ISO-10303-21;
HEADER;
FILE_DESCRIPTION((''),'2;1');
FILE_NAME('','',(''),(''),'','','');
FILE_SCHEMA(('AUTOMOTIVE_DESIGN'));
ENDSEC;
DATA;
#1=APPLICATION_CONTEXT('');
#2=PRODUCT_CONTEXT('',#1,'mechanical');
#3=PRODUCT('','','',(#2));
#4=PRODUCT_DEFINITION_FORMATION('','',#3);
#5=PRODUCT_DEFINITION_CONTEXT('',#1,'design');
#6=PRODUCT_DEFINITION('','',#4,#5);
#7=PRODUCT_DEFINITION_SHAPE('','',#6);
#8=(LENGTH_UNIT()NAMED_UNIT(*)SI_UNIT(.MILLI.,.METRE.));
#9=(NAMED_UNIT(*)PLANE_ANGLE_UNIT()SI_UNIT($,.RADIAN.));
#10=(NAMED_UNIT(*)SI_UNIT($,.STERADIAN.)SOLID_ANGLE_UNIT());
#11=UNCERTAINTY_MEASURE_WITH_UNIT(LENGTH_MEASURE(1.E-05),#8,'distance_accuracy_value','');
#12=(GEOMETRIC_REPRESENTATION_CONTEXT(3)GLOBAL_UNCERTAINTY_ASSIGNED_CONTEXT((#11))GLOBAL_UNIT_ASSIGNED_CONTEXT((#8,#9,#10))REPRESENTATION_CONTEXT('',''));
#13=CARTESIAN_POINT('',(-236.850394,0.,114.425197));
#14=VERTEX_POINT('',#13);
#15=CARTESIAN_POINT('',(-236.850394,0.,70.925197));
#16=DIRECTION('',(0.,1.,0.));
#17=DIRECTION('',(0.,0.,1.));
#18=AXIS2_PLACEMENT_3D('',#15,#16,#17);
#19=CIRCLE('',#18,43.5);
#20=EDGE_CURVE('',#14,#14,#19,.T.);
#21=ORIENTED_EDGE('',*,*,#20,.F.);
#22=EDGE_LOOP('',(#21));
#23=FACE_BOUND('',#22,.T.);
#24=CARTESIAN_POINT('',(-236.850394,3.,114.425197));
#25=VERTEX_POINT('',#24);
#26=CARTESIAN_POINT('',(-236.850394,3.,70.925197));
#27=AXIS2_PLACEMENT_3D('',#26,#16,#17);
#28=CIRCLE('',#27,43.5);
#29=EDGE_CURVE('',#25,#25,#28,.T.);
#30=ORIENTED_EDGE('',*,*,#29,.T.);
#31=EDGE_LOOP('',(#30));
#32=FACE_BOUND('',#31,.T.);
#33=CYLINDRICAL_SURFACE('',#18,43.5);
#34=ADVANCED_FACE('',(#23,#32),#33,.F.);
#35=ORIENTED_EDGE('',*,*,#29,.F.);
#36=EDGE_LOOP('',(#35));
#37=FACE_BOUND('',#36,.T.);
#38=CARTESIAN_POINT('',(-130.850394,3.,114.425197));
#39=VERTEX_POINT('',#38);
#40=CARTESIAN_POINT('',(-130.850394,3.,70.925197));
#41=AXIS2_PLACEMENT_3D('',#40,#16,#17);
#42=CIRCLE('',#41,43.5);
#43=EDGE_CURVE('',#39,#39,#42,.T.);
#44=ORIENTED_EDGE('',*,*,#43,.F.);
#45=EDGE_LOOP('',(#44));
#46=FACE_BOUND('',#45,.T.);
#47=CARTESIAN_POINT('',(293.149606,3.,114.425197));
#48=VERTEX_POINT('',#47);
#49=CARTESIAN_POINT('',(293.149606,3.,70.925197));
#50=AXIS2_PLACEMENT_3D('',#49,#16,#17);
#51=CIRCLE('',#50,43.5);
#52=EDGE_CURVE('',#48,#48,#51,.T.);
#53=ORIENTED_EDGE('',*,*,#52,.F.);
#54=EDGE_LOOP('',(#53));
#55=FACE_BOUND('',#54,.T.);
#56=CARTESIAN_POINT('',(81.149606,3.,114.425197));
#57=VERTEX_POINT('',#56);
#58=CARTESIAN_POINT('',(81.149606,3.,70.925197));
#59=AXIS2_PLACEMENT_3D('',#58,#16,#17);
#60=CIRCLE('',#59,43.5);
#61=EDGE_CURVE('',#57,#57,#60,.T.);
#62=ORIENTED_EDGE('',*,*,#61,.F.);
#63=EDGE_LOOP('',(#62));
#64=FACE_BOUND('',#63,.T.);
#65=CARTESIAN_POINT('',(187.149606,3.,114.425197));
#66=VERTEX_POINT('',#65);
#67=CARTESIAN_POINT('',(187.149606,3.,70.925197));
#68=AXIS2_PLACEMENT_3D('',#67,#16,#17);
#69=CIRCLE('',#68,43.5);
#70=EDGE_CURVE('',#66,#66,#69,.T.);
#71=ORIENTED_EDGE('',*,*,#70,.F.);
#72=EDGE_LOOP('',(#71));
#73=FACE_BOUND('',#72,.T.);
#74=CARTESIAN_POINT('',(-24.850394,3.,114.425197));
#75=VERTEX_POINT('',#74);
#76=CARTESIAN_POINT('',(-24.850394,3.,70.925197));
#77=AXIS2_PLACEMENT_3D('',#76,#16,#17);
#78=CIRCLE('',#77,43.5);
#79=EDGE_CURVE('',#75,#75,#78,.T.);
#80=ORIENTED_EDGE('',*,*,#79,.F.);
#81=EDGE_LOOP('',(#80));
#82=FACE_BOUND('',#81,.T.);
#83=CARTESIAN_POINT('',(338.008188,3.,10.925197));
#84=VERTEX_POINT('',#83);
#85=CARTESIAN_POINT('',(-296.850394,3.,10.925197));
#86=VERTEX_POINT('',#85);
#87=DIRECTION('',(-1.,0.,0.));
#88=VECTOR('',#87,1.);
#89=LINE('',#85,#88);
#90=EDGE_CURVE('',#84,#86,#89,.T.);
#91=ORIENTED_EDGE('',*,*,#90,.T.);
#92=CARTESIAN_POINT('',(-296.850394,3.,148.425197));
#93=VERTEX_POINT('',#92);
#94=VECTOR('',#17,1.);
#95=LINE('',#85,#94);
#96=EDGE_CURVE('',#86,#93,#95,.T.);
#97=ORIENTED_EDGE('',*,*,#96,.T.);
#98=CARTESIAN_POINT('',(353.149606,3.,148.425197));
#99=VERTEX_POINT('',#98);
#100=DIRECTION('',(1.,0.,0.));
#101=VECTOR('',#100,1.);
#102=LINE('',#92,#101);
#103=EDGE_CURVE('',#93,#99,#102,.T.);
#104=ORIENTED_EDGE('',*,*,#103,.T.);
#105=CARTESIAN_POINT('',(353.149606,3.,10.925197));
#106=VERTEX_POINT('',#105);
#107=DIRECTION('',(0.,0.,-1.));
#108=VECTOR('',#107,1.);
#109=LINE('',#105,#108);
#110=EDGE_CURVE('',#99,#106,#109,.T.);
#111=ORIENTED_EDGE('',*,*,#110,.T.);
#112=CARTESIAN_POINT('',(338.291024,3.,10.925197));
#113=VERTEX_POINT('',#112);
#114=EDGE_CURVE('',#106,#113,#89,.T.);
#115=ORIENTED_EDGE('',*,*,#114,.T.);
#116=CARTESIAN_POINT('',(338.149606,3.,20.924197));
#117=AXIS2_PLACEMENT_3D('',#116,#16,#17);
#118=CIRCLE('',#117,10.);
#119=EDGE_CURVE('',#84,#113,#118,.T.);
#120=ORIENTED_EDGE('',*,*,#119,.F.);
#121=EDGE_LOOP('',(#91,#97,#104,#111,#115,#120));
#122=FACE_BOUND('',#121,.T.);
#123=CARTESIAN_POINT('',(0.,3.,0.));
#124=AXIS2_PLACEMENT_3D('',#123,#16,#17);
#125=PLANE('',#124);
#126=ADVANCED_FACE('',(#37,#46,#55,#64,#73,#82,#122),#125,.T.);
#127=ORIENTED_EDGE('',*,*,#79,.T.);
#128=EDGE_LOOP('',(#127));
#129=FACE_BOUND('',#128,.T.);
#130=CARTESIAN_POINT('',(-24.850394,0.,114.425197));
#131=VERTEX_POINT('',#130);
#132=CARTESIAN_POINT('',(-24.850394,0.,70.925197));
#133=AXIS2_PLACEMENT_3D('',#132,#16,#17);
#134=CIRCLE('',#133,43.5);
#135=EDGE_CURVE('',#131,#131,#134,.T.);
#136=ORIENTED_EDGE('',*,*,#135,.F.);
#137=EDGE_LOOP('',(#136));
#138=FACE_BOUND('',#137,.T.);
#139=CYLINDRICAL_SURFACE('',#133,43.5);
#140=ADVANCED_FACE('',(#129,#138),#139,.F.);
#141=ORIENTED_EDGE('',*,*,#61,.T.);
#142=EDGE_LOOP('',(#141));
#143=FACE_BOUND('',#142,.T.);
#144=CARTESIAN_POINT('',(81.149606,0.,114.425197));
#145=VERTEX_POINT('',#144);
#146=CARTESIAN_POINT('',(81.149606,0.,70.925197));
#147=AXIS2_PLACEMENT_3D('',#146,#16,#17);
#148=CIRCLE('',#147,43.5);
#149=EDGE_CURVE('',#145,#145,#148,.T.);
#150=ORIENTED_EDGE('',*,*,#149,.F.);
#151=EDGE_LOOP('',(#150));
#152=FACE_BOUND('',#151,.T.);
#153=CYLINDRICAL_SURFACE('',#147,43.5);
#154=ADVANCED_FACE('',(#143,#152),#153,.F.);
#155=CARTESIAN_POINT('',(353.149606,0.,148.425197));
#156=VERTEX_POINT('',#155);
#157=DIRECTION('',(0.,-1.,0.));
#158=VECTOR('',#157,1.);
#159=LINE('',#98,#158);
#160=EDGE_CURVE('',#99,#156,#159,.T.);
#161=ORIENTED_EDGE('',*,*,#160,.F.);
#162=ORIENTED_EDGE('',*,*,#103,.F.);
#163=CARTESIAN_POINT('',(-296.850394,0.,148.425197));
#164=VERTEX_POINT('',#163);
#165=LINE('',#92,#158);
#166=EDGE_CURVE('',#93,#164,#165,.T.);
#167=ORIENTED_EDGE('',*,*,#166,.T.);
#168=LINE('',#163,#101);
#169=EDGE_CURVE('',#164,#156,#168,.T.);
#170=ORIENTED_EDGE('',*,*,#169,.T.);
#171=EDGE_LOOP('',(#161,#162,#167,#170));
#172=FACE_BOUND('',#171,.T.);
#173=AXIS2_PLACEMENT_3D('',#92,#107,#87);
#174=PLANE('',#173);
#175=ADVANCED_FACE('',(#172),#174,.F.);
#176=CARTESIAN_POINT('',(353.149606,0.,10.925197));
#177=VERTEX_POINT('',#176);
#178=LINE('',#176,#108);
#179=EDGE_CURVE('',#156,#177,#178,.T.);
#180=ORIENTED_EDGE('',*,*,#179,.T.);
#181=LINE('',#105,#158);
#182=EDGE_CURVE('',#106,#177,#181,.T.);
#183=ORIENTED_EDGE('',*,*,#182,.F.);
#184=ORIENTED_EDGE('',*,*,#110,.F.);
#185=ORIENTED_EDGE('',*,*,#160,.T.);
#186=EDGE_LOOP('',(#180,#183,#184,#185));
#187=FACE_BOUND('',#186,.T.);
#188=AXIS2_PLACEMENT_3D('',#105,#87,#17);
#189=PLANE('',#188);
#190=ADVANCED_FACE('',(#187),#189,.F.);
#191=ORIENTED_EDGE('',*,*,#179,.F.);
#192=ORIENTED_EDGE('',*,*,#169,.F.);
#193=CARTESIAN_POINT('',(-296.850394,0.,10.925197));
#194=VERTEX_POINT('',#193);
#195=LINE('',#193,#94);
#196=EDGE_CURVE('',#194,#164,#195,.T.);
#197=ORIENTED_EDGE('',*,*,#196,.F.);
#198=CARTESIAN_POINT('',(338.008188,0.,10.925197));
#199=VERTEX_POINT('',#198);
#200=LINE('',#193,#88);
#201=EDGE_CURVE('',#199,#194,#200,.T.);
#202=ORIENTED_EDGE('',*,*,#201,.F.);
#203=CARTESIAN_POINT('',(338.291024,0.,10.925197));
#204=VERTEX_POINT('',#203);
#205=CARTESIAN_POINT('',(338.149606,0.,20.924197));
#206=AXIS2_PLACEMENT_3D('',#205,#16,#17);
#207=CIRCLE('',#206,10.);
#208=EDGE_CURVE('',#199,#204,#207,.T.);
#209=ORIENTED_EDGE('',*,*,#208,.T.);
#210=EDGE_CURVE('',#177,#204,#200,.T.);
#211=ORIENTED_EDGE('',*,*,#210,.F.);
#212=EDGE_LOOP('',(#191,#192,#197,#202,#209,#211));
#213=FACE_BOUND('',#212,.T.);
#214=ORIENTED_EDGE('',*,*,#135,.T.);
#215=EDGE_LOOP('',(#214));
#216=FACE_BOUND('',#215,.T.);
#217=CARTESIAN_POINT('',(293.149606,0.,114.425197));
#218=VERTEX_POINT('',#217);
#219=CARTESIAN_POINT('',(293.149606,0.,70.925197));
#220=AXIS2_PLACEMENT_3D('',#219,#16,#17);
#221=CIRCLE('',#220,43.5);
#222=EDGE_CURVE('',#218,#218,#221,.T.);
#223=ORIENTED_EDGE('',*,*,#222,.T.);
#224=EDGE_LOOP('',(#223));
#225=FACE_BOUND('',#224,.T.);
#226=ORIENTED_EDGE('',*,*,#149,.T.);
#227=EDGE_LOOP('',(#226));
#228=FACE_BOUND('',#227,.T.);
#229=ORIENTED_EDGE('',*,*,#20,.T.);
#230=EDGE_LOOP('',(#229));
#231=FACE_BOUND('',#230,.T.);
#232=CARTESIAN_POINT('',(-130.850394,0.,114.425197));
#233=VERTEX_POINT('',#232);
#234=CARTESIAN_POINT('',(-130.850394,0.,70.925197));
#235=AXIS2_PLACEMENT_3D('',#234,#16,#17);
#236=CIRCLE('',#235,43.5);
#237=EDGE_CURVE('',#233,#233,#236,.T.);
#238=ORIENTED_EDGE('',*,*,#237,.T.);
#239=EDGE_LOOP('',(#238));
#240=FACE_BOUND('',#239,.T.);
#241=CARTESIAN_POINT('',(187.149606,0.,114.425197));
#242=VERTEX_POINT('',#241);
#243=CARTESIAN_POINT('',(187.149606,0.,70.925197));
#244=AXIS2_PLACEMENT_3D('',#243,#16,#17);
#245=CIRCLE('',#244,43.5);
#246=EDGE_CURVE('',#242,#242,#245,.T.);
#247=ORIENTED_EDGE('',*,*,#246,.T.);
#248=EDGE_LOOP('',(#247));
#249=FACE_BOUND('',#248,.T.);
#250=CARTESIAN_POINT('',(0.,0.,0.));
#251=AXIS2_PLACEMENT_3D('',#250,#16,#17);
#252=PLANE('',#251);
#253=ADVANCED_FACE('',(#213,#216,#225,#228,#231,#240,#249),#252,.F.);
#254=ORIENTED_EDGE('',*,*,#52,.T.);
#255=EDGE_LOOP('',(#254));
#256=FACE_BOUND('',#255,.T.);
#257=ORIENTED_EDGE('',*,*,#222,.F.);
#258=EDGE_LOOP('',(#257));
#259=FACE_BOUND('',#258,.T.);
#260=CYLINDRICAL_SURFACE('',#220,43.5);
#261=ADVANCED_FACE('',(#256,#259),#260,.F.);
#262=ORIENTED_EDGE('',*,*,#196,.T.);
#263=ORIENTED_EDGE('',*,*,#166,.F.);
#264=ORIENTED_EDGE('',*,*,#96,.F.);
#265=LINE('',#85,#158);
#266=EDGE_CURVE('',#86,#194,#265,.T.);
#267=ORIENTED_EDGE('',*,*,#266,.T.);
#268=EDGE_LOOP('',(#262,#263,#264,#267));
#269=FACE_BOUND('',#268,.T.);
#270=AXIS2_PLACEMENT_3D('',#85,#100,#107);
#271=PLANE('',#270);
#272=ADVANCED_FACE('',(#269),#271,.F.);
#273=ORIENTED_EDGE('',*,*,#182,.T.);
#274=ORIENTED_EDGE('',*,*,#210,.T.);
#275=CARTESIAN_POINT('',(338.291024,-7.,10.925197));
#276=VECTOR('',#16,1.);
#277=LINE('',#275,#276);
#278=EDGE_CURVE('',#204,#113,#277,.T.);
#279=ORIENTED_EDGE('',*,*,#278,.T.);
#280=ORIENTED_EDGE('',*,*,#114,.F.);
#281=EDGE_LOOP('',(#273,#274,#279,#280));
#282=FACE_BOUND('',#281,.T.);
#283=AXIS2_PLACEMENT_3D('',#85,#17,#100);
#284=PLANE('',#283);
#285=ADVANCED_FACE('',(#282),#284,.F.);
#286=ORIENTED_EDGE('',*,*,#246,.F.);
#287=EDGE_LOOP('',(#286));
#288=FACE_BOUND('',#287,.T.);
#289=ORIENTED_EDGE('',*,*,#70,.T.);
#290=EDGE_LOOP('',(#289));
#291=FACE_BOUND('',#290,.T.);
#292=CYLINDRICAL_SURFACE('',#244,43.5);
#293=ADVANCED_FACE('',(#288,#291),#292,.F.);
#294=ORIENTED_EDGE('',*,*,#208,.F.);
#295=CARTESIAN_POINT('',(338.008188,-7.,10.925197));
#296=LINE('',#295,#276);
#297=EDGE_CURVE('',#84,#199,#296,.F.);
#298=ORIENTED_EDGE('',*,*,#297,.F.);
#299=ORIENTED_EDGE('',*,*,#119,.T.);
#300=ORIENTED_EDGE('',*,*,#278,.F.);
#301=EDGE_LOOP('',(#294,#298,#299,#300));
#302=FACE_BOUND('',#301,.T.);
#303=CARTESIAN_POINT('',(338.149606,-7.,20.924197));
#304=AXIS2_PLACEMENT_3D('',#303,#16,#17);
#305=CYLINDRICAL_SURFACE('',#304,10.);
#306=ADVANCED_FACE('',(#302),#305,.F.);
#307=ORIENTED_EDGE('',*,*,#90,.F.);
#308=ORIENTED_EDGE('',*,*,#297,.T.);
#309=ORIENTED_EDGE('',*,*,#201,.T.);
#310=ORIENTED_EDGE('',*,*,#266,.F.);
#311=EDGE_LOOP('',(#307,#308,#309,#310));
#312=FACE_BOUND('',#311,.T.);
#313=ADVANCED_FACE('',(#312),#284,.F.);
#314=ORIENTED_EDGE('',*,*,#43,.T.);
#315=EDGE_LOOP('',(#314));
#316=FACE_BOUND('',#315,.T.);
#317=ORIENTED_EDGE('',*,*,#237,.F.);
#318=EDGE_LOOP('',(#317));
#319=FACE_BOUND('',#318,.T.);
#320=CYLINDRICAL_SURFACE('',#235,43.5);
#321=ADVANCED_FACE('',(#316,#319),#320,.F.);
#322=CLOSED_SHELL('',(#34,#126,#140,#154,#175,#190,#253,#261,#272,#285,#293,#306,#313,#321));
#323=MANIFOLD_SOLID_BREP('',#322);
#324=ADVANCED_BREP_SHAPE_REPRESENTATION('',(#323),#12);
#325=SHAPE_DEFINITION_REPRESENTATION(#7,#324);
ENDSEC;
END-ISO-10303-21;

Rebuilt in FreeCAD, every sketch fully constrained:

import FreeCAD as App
import Part
import Sketcher
from FreeCAD import Vector
Q = App.Units.Quantity

doc = App.newDocument("Part")
params = doc.addObject("Spreadsheet::Sheet", "Params")
for row, (alias, value) in enumerate([
    ("sketch1_width", "650 mm"),
    ("sketch1_height", "137.5 mm"),
    ("pad1_length", "3 mm"),
    ("sketch2_diameter", "87 mm"),
    ("sketch3_diameter", "87 mm"),
    ("sketch3_diameter2", "20 mm"),
    ("pocket2_length", "10 mm"),
], start=1):
    params.set(f"A{row}", alias)
    params.set(f"B{row}", "=" + value)
    params.setAlias(f"B{row}", alias)

body = doc.addObject("PartDesign::Body", "Body")

# Sketch on XZ plane
sketch1 = body.newObject("Sketcher::SketchObject", "Sketch")
sketch1.AttachmentSupport = (doc.getObject("XZ_Plane"), [""])
sketch1.MapMode = "FlatFace"
sketch1.addGeometry([
    Part.LineSegment(Vector(-297, 11, 0), Vector(-297, 148, 0)),
    Part.LineSegment(Vector(-297, 148, 0), Vector(353, 148, 0)),
    Part.LineSegment(Vector(353, 148, 0), Vector(353, 11, 0)),
    Part.LineSegment(Vector(353, 11, 0), Vector(-297, 11, 0)),
], False)
sketch1.addConstraint([
    Sketcher.Constraint("Coincident", 0, 2, 1, 1),
    Sketcher.Constraint("Coincident", 1, 2, 2, 1),
    Sketcher.Constraint("Coincident", 2, 2, 3, 1),
    Sketcher.Constraint("Coincident", 3, 2, 0, 1),
    Sketcher.Constraint("Vertical", 0),
    Sketcher.Constraint("Horizontal", 1),
    Sketcher.Constraint("Vertical", 2),
    Sketcher.Constraint("Horizontal", 3),
    Sketcher.Constraint("DistanceX", 1, 1, 1, 2, Q("650 mm")),
    Sketcher.Constraint("DistanceY", 0, 1, 0, 2, Q("137.5 mm")),
    Sketcher.Constraint("DistanceX", 0, 2, -1, 1, Q("296.850394 mm")),
    Sketcher.Constraint("DistanceY", -1, 1, 0, 2, Q("148.425197 mm")),
])
sketch1.setExpression("Constraints[8]", "Params.sketch1_width")
sketch1.setExpression("Constraints[9]", "Params.sketch1_height")
pad1 = body.newObject("PartDesign::Pad", "Pad")
pad1.Profile = sketch1
pad1.setExpression("Length", "Params.pad1_length")
pad1.Reversed = True

# Sketch on XZ plane
sketch2 = body.newObject("Sketcher::SketchObject", "Sketch001")
sketch2.AttachmentSupport = (doc.getObject("XZ_Plane"), [""])
sketch2.MapMode = "FlatFace"
sketch2.AttachmentOffset = App.Placement(Vector(0, 0, -3), App.Rotation())
sketch2.addGeometry([
    Part.Circle(Vector(-237, 71, 0), Vector(0, 0, 1), 44),  # 0
    Part.Circle(Vector(-131, 71, 0), Vector(0, 0, 1), 44),  # 1
    Part.Circle(Vector(-25, 71, 0), Vector(0, 0, 1), 44),  # 2
    Part.Circle(Vector(81, 71, 0), Vector(0, 0, 1), 44),  # 3
    Part.Circle(Vector(187, 71, 0), Vector(0, 0, 1), 44),  # 4
    Part.Circle(Vector(293, 71, 0), Vector(0, 0, 1), 44),  # 5
], False)
sketch2.addConstraint([
    Sketcher.Constraint("Equal", 0, 1),
    Sketcher.Constraint("Equal", 1, 2),
    Sketcher.Constraint("Equal", 2, 3),
    Sketcher.Constraint("Equal", 3, 4),
    Sketcher.Constraint("Equal", 4, 5),
    Sketcher.Constraint("Horizontal", 0, 3, 1, 3),
    Sketcher.Constraint("Horizontal", 1, 3, 2, 3),
    Sketcher.Constraint("Horizontal", 2, 3, 3, 3),
    Sketcher.Constraint("Horizontal", 3, 3, 4, 3),
    Sketcher.Constraint("Horizontal", 4, 3, 5, 3),
    Sketcher.Constraint("Diameter", 0, Q("87 mm")),
    Sketcher.Constraint("DistanceX", 0, 3, 1, 3, Q("106 mm")),
    Sketcher.Constraint("DistanceX", 1, 3, 2, 3, Q("106 mm")),
    Sketcher.Constraint("DistanceX", 2, 3, 3, 3, Q("106 mm")),
    Sketcher.Constraint("DistanceX", 3, 3, 4, 3, Q("106 mm")),
    Sketcher.Constraint("DistanceX", 4, 3, 5, 3, Q("106 mm")),
    Sketcher.Constraint("DistanceX", 0, 3, -1, 1, Q("236.850394 mm")),
    Sketcher.Constraint("DistanceY", -1, 1, 0, 3, Q("70.925197 mm")),
])
sketch2.setExpression("Constraints[10]", "Params.sketch2_diameter")
pocket1 = body.newObject("PartDesign::Pocket", "Pocket")
pocket1.Profile = sketch2
pocket1.Type = "ThroughAll"
pocket1.Reversed = True

# Sketch on XZ plane
sketch3 = body.newObject("Sketcher::SketchObject", "Sketch002")
sketch3.AttachmentSupport = (doc.getObject("XZ_Plane"), [""])
sketch3.MapMode = "FlatFace"
sketch3.AttachmentOffset = App.Placement(Vector(0, 0, -3), App.Rotation())
sketch3.addGeometry([
    Part.Circle(Vector(-237, 71, 0), Vector(0, 0, 1), 44),  # 0
    Part.Circle(Vector(-131, 71, 0), Vector(0, 0, 1), 44),  # 1
    Part.Circle(Vector(-25, 71, 0), Vector(0, 0, 1), 44),  # 2
    Part.Circle(Vector(81, 71, 0), Vector(0, 0, 1), 44),  # 3
    Part.Circle(Vector(187, 71, 0), Vector(0, 0, 1), 44),  # 4
    Part.Circle(Vector(293, 71, 0), Vector(0, 0, 1), 44),  # 5
    Part.Circle(Vector(338, 21, 0), Vector(0, 0, 1), 10),  # 6
], False)
sketch3.addConstraint([
    Sketcher.Constraint("Equal", 0, 1),
    Sketcher.Constraint("Equal", 1, 2),
    Sketcher.Constraint("Equal", 2, 3),
    Sketcher.Constraint("Equal", 3, 4),
    Sketcher.Constraint("Equal", 4, 5),
    Sketcher.Constraint("Horizontal", 0, 3, 1, 3),
    Sketcher.Constraint("Horizontal", 1, 3, 2, 3),
    Sketcher.Constraint("Horizontal", 2, 3, 3, 3),
    Sketcher.Constraint("Horizontal", 3, 3, 4, 3),
    Sketcher.Constraint("Horizontal", 4, 3, 5, 3),
    Sketcher.Constraint("Diameter", 0, Q("87 mm")),
    Sketcher.Constraint("Diameter", 6, Q("20 mm")),
    Sketcher.Constraint("DistanceX", 0, 3, 1, 3, Q("106 mm")),
    Sketcher.Constraint("DistanceX", 1, 3, 2, 3, Q("106 mm")),
    Sketcher.Constraint("DistanceX", 2, 3, 3, 3, Q("106 mm")),
    Sketcher.Constraint("DistanceX", 3, 3, 4, 3, Q("106 mm")),
    Sketcher.Constraint("DistanceX", 4, 3, 5, 3, Q("106 mm")),
    Sketcher.Constraint("DistanceX", 5, 3, 6, 3, Q("45 mm")),
    Sketcher.Constraint("DistanceY", 6, 3, 5, 3, Q("50.001 mm")),
    Sketcher.Constraint("DistanceX", 0, 3, -1, 1, Q("236.850394 mm")),
    Sketcher.Constraint("DistanceY", -1, 1, 0, 3, Q("70.925197 mm")),
])
sketch3.setExpression("Constraints[10]", "Params.sketch3_diameter")
sketch3.setExpression("Constraints[11]", "Params.sketch3_diameter2")
pocket2 = body.newObject("PartDesign::Pocket", "Pocket001")
pocket2.Profile = sketch3
pocket2.setExpression("Length", "Params.pocket2_length")
pocket2.Reversed = True

doc.recompute()
